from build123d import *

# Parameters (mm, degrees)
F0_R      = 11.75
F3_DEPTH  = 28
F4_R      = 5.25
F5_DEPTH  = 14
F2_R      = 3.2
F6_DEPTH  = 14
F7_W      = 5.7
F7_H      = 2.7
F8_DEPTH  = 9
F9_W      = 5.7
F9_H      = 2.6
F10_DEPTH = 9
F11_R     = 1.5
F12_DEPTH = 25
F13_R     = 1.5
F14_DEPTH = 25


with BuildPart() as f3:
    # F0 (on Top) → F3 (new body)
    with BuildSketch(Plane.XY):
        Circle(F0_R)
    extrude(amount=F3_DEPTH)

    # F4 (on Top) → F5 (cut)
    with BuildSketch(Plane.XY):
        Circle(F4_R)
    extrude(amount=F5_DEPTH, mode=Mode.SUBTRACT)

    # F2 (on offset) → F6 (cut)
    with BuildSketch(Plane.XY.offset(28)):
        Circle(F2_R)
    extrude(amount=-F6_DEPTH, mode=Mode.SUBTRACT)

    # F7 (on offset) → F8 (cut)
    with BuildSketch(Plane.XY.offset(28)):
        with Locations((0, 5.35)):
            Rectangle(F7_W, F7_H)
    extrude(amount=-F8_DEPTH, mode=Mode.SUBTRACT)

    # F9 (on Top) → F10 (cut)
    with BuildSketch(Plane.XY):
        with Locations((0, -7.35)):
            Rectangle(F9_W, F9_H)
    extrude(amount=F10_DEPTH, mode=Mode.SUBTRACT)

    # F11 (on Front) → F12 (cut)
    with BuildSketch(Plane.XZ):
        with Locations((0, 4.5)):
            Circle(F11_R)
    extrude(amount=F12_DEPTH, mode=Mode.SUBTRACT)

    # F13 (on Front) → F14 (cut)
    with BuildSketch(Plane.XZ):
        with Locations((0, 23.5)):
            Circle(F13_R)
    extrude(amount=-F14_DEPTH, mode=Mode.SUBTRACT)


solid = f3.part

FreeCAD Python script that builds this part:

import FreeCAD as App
import Part
import Sketcher
Q = App.Units.Quantity


def add_polygon(sketch, points):
    """Adds a closed chain of lines whose ends are joined by coincident constraints."""
    first, n = sketch.GeometryCount, len(points)
    for a, b in zip(points, points[1:] + points[:1]):
        sketch.addGeometry(Part.LineSegment(App.Vector(*a, 0), App.Vector(*b, 0)), False)
    for i in range(n):
        sketch.addConstraint(Sketcher.Constraint("Coincident", first + i, 2, first + (i + 1) % n, 1))

doc = App.newDocument("Part")
body = doc.addObject("PartDesign::Body", "Body")

sketch1 = body.newObject("Sketcher::SketchObject", "Sketch")
sketch1.AttachmentSupport = (doc.getObject("XY_Plane"), [""])
sketch1.MapMode = "FlatFace"
sketch1.addGeometry(Part.Circle(App.Vector(0, 0, 0), App.Vector(0, 0, 1), 11.75), False)
sketch1.addConstraint(Sketcher.Constraint("Coincident", 0, 3, -1, 1))
sketch1.addConstraint(Sketcher.Constraint("Diameter", 0, Q("23.5 mm")))
pad1 = body.newObject("PartDesign::Pad", "Pad")
pad1.Profile = sketch1
pad1.Length = 28

sketch2 = body.newObject("Sketcher::SketchObject", "Sketch001")
sketch2.AttachmentSupport = (doc.getObject("XY_Plane"), [""])
sketch2.MapMode = "FlatFace"
sketch2.addGeometry(Part.Circle(App.Vector(0, 0, 0), App.Vector(0, 0, 1), 5.25), False)
sketch2.addConstraint(Sketcher.Constraint("Coincident", 0, 3, -1, 1))
sketch2.addConstraint(Sketcher.Constraint("Diameter", 0, Q("10.5 mm")))
pocket1 = body.newObject("PartDesign::Pocket", "Pocket")
pocket1.Profile = sketch2
pocket1.Length = 14
pocket1.Reversed = True

sketch3 = body.newObject("Sketcher::SketchObject", "Sketch002")
sketch3.AttachmentSupport = (doc.getObject("XY_Plane"), [""])
sketch3.MapMode = "FlatFace"
sketch3.AttachmentOffset = App.Placement(App.Vector(0, 0, 28), App.Rotation())
sketch3.addGeometry(Part.Circle(App.Vector(0, 0, 0), App.Vector(0, 0, 1), 3.2), False)
sketch3.addConstraint(Sketcher.Constraint("Coincident", 0, 3, -1, 1))
sketch3.addConstraint(Sketcher.Constraint("Diameter", 0, Q("6.4 mm")))
pocket2 = body.newObject("PartDesign::Pocket", "Pocket001")
pocket2.Profile = sketch3
pocket2.Length = 14

sketch4 = body.newObject("Sketcher::SketchObject", "Sketch003")
sketch4.AttachmentSupport = (doc.getObject("XY_Plane"), [""])
sketch4.MapMode = "FlatFace"
sketch4.AttachmentOffset = App.Placement(App.Vector(0, 0, 28), App.Rotation())
add_polygon(sketch4, [(-2.85, 6.7), (-2.85, 4), (2.85, 4), (2.85, 6.7)])
sketch4.addConstraint(Sketcher.Constraint("Vertical", 0))
sketch4.addConstraint(Sketcher.Constraint("Horizontal", 1))
sketch4.addConstraint(Sketcher.Constraint("Vertical", 2))
sketch4.addConstraint(Sketcher.Constraint("Horizontal", 3))
sketch4.addConstraint(Sketcher.Constraint("DistanceX", 1, 1, 1, 2, Q("5.7 mm")))
sketch4.addConstraint(Sketcher.Constraint("DistanceY", 0, 2, 0, 1, Q("2.7 mm")))
sketch4.addConstraint(Sketcher.Constraint("DistanceY", -1, 1, 0, 2, Q("4 mm")))
sketch4.addConstraint(Sketcher.Constraint("DistanceX", 0, 2, -1, 1, Q("2.85 mm")))
pocket3 = body.newObject("PartDesign::Pocket", "Pocket002")
pocket3.Profile = sketch4
pocket3.Length = 9

sketch5 = body.newObject("Sketcher::SketchObject", "Sketch004")
sketch5.AttachmentSupport = (doc.getObject("XY_Plane"), [""])
sketch5.MapMode = "FlatFace"
add_polygon(sketch5, [(-2.85, -6.05), (-2.85, -8.65), (2.85, -8.65), (2.85, -6.05)])
sketch5.addConstraint(Sketcher.Constraint("Vertical", 0))
sketch5.addConstraint(Sketcher.Constraint("Horizontal", 1))
sketch5.addConstraint(Sketcher.Constraint("Vertical", 2))
sketch5.addConstraint(Sketcher.Constraint("Horizontal", 3))
sketch5.addConstraint(Sketcher.Constraint("DistanceX", 1, 1, 1, 2, Q("5.7 mm")))
sketch5.addConstraint(Sketcher.Constraint("DistanceY", 0, 2, 0, 1, Q("2.6 mm")))
sketch5.addConstraint(Sketcher.Constraint("DistanceX", 0, 2, -1, 1, Q("2.85 mm")))
sketch5.addConstraint(Sketcher.Constraint("DistanceY", 0, 2, -1, 1, Q("8.65 mm")))
pocket4 = body.newObject("PartDesign::Pocket", "Pocket003")
pocket4.Profile = sketch5
pocket4.Length = 9
pocket4.Reversed = True

sketch6 = body.newObject("Sketcher::SketchObject", "Sketch005")
sketch6.AttachmentSupport = (doc.getObject("XZ_Plane"), [""])
sketch6.MapMode = "FlatFace"
sketch6.addGeometry(Part.Circle(App.Vector(0, 4.5, 0), App.Vector(0, 0, 1), 1.5), False)
sketch6.addConstraint(Sketcher.Constraint("PointOnObject", 0, 3, -2))
sketch6.addConstraint(Sketcher.Constraint("Diameter", 0, Q("3 mm")))
sketch6.addConstraint(Sketcher.Constraint("DistanceY", -1, 1, 0, 3, Q("4.5 mm")))
pocket5 = body.newObject("PartDesign::Pocket", "Pocket004")
pocket5.Profile = sketch6
pocket5.Length = 25
pocket5.Reversed = True

sketch7 = body.newObject("Sketcher::SketchObject", "Sketch006")
sketch7.AttachmentSupport = (doc.getObject("XZ_Plane"), [""])
sketch7.MapMode = "FlatFace"
sketch7.addGeometry(Part.Circle(App.Vector(0, 23.5, 0), App.Vector(0, 0, 1), 1.5), False)
sketch7.addConstraint(Sketcher.Constraint("PointOnObject", 0, 3, -2))
sketch7.addConstraint(Sketcher.Constraint("Diameter", 0, Q("3 mm")))
sketch7.addConstraint(Sketcher.Constraint("DistanceY", -1, 1, 0, 3, Q("23.5 mm")))
pocket6 = body.newObject("PartDesign::Pocket", "Pocket005")
pocket6.Profile = sketch7
pocket6.Length = 25

doc.recompute()
